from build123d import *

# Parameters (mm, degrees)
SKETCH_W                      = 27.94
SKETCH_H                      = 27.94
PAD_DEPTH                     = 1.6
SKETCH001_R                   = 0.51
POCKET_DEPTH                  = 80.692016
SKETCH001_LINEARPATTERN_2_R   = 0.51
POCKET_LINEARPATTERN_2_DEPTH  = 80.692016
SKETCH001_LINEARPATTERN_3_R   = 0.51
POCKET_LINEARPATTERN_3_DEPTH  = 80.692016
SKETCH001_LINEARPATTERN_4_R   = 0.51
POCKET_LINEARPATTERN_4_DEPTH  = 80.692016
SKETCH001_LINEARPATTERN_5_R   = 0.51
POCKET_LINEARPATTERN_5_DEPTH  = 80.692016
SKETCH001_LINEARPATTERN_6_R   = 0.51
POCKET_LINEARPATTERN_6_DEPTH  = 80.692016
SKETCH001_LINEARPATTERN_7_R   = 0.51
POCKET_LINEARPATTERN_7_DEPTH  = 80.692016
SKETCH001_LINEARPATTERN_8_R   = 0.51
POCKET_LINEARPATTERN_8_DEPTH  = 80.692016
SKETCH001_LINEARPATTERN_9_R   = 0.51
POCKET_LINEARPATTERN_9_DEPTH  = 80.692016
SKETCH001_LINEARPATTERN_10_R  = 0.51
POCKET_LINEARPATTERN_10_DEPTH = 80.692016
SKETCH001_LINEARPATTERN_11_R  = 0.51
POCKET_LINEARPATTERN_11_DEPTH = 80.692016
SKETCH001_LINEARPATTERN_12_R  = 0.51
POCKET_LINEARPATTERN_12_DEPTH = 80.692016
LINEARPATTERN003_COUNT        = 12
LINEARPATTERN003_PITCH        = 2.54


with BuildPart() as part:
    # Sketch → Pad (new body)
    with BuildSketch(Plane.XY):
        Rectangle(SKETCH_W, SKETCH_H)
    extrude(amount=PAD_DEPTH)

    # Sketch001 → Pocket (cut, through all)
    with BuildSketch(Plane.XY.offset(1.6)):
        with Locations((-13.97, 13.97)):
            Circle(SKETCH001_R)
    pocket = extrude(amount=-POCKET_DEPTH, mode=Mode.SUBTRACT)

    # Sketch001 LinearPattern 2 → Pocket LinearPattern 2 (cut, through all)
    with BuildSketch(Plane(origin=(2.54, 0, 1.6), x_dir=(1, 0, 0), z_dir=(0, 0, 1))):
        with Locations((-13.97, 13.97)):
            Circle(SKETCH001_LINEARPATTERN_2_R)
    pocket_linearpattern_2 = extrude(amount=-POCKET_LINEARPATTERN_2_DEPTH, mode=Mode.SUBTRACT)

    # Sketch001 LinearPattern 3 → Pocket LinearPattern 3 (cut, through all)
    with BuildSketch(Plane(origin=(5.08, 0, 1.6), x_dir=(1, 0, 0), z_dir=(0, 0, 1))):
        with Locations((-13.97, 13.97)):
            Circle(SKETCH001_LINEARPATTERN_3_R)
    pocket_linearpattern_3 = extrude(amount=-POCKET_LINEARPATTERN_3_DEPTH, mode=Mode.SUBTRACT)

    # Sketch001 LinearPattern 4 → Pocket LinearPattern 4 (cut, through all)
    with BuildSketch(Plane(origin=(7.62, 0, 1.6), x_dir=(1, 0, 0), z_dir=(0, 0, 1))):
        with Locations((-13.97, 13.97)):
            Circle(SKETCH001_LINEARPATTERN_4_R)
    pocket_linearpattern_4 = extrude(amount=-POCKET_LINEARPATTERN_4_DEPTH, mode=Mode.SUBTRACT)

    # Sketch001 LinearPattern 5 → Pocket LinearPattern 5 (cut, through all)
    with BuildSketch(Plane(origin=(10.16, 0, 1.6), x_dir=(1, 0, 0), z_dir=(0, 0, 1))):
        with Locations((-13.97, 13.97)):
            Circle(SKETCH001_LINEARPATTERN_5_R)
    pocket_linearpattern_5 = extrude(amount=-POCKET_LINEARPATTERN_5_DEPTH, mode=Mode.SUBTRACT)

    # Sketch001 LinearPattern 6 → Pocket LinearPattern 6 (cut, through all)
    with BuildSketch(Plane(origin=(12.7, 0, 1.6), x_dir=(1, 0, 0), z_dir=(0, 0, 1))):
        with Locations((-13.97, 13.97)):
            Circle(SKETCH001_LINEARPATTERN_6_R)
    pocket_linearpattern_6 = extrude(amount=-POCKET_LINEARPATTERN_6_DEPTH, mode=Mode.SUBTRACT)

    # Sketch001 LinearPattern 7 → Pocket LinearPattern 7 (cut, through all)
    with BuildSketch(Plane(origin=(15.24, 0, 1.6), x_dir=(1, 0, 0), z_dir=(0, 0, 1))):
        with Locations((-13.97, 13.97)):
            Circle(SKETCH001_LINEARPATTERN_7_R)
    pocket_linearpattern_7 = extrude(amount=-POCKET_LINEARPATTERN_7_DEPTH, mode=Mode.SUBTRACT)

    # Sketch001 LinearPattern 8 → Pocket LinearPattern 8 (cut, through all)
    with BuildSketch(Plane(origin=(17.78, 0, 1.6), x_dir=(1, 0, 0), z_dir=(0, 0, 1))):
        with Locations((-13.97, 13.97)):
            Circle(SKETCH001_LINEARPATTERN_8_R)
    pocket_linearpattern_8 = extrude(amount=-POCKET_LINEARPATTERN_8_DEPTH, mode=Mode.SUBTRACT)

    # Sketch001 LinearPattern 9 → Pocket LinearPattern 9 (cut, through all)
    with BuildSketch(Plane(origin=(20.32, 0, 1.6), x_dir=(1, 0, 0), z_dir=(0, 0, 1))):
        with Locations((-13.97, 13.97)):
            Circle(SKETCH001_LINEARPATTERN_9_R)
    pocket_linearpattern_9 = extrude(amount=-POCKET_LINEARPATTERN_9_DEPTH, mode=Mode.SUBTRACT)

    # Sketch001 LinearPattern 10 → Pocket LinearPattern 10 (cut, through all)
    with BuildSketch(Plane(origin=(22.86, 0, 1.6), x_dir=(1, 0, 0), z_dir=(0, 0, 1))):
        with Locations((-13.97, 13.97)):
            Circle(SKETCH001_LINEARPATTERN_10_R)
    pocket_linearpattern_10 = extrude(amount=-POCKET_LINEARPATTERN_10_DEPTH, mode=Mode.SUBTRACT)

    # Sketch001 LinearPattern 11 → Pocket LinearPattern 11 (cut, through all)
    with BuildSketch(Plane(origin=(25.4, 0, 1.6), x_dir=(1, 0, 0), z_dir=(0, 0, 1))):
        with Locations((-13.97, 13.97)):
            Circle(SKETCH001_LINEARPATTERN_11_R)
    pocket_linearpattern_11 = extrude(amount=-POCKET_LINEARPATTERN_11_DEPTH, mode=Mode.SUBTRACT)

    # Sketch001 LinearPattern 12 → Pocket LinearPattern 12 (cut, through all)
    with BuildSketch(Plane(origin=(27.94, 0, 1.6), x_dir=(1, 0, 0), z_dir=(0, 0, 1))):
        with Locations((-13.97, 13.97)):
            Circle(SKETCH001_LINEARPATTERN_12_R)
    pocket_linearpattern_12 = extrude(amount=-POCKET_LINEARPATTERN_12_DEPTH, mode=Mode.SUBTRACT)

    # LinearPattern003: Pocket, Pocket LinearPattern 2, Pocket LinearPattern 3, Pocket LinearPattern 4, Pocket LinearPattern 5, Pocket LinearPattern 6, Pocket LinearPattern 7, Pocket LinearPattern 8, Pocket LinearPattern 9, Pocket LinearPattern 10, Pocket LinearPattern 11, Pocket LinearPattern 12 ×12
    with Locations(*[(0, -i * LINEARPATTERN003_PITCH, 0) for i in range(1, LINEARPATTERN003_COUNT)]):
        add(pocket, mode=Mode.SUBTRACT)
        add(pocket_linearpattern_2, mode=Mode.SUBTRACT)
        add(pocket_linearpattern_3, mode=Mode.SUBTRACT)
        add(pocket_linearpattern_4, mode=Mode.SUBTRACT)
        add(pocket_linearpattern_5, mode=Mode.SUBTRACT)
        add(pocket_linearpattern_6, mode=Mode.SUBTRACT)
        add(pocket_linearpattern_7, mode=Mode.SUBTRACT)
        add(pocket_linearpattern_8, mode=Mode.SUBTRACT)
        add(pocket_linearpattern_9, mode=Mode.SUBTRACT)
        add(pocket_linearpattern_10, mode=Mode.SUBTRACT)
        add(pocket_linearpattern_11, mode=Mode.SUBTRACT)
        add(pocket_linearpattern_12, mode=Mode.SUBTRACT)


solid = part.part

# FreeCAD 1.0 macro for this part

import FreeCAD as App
import Part
import Sketcher
from FreeCAD import Vector


def add_polygon(sketch, points):
    """Adds a closed chain of lines whose ends are joined by coincident constraints."""
    first, n = sketch.GeometryCount, len(points)
    for a, b in zip(points, points[1:] + points[:1]):
        sketch.addGeometry(Part.LineSegment(App.Vector(*a, 0), App.Vector(*b, 0)), False)
    for i in range(n):
        sketch.addConstraint(Sketcher.Constraint("Coincident", first + i, 2, first + (i + 1) % n, 1))

doc = App.newDocument("Part")
body = doc.addObject("PartDesign::Body", "Body")

# Sketch on XY plane
sketch1 = body.newObject("Sketcher::SketchObject", "Sketch")
sketch1.AttachmentSupport = (doc.getObject("XY_Plane"), [""])
sketch1.MapMode = "FlatFace"
add_polygon(sketch1, [(-13.97, 13.97), (-13.97, -13.97), (13.97, -13.97), (13.97, 13.97)])  # lines 0-3
sketch1.addConstraint(Sketcher.Constraint("Vertical", 0))
sketch1.addConstraint(Sketcher.Constraint("Horizontal", 1))
sketch1.addConstraint(Sketcher.Constraint("Vertical", 2))
sketch1.addConstraint(Sketcher.Constraint("Horizontal", 3))
sketch1.addConstraint(Sketcher.Constraint("Symmetric", 0, 2, 2, 2, -1, 1))
sketch1.addConstraint(Sketcher.Constraint("Equal", 3, 0))
sketch1.addConstraint(Sketcher.Constraint("DistanceX", 1, 1, 1, 2, 27.94))
pad1 = body.newObject("PartDesign::Pad", "Pad")
pad1.Profile = sketch1
pad1.Length = 1.6

# Sketch on XY plane
sketch2 = body.newObject("Sketcher::SketchObject", "Sketch001")
sketch2.AttachmentSupport = (doc.getObject("XY_Plane"), [""])
sketch2.MapMode = "FlatFace"
sketch2.AttachmentOffset = App.Placement(Vector(0, 0, 1.6), App.Rotation())
sketch2.addGeometry(Part.Circle(Vector(-13.97, 13.97, 0), Vector(0, 0, 1), 0.51), False)
sketch2.addConstraint(Sketcher.Constraint("Diameter", 0, 1.02))
sketch2.addConstraint(Sketcher.Constraint("DistanceX", 0, 3, -1, 1, 13.97))
sketch2.addConstraint(Sketcher.Constraint("DistanceY", -1, 1, 0, 3, 13.97))
pocket1 = body.newObject("PartDesign::Pocket", "Pocket")
pocket1.Profile = sketch2
pocket1.Type = "ThroughAll"

# Sketch on XY plane
sketch3 = body.newObject("Sketcher::SketchObject", "Sketch002")
sketch3.AttachmentSupport = (doc.getObject("XY_Plane"), [""])
sketch3.MapMode = "FlatFace"
sketch3.AttachmentOffset = App.Placement(Vector(0, 0, 1.6), App.Rotation())
sketch3.addGeometry(Part.Circle(Vector(-11.43, 13.97, 0), Vector(0, 0, 1), 0.51), False)
sketch3.addConstraint(Sketcher.Constraint("Diameter", 0, 1.02))
sketch3.addConstraint(Sketcher.Constraint("DistanceX", 0, 3, -1, 1, 11.43))
sketch3.addConstraint(Sketcher.Constraint("DistanceY", -1, 1, 0, 3, 13.97))
pocket2 = body.newObject("PartDesign::Pocket", "Pocket001")
pocket2.Profile = sketch3
pocket2.Type = "ThroughAll"

# Sketch on XY plane
sketch4 = body.newObject("Sketcher::SketchObject", "Sketch003")
sketch4.AttachmentSupport = (doc.getObject("XY_Plane"), [""])
sketch4.MapMode = "FlatFace"
sketch4.AttachmentOffset = App.Placement(Vector(0, 0, 1.6), App.Rotation())
sketch4.addGeometry(Part.Circle(Vector(-8.89, 13.97, 0), Vector(0, 0, 1), 0.51), False)
sketch4.addConstraint(Sketcher.Constraint("Diameter", 0, 1.02))
sketch4.addConstraint(Sketcher.Constraint("DistanceX", 0, 3, -1, 1, 8.89))
sketch4.addConstraint(Sketcher.Constraint("DistanceY", -1, 1, 0, 3, 13.97))
pocket3 = body.newObject("PartDesign::Pocket", "Pocket002")
pocket3.Profile = sketch4
pocket3.Type = "ThroughAll"

# Sketch on XY plane
sketch5 = body.newObject("Sketcher::SketchObject", "Sketch004")
sketch5.AttachmentSupport = (doc.getObject("XY_Plane"), [""])
sketch5.MapMode = "FlatFace"
sketch5.AttachmentOffset = App.Placement(Vector(0, 0, 1.6), App.Rotation())
sketch5.addGeometry(Part.Circle(Vector(-6.35, 13.97, 0), Vector(0, 0, 1), 0.51), False)
sketch5.addConstraint(Sketcher.Constraint("Diameter", 0, 1.02))
sketch5.addConstraint(Sketcher.Constraint("DistanceX", 0, 3, -1, 1, 6.35))
sketch5.addConstraint(Sketcher.Constraint("DistanceY", -1, 1, 0, 3, 13.97))
pocket4 = body.newObject("PartDesign::Pocket", "Pocket003")
pocket4.Profile = sketch5
pocket4.Type = "ThroughAll"

# Sketch on XY plane
sketch6 = body.newObject("Sketcher::SketchObject", "Sketch005")
sketch6.AttachmentSupport = (doc.getObject("XY_Plane"), [""])
sketch6.MapMode = "FlatFace"
sketch6.AttachmentOffset = App.Placement(Vector(0, 0, 1.6), App.Rotation())
sketch6.addGeometry(Part.Circle(Vector(-3.81, 13.97, 0), Vector(0, 0, 1), 0.51), False)
sketch6.addConstraint(Sketcher.Constraint("Diameter", 0, 1.02))
sketch6.addConstraint(Sketcher.Constraint("DistanceX", 0, 3, -1, 1, 3.81))
sketch6.addConstraint(Sketcher.Constraint("DistanceY", -1, 1, 0, 3, 13.97))
pocket5 = body.newObject("PartDesign::Pocket", "Pocket004")
pocket5.Profile = sketch6
pocket5.Type = "ThroughAll"

# Sketch on XY plane
sketch7 = body.newObject("Sketcher::SketchObject", "Sketch006")
sketch7.AttachmentSupport = (doc.getObject("XY_Plane"), [""])
sketch7.MapMode = "FlatFace"
sketch7.AttachmentOffset = App.Placement(Vector(0, 0, 1.6), App.Rotation())
sketch7.addGeometry(Part.Circle(Vector(-1.27, 13.97, 0), Vector(0, 0, 1), 0.51), False)
sketch7.addConstraint(Sketcher.Constraint("Diameter", 0, 1.02))
sketch7.addConstraint(Sketcher.Constraint("DistanceX", 0, 3, -1, 1, 1.27))
sketch7.addConstraint(Sketcher.Constraint("DistanceY", -1, 1, 0, 3, 13.97))
pocket6 = body.newObject("PartDesign::Pocket", "Pocket005")
pocket6.Profile = sketch7
pocket6.Type = "ThroughAll"

# Sketch on XY plane
sketch8 = body.newObject("Sketcher::SketchObject", "Sketch007")
sketch8.AttachmentSupport = (doc.getObject("XY_Plane"), [""])
sketch8.MapMode = "FlatFace"
sketch8.AttachmentOffset = App.Placement(Vector(0, 0, 1.6), App.Rotation())
sketch8.addGeometry(Part.Circle(Vector(1.27, 13.97, 0), Vector(0, 0, 1), 0.51), False)
sketch8.addConstraint(Sketcher.Constraint("Diameter", 0, 1.02))
sketch8.addConstraint(Sketcher.Constraint("DistanceX", -1, 1, 0, 3, 1.27))
sketch8.addConstraint(Sketcher.Constraint("DistanceY", -1, 1, 0, 3, 13.97))
pocket7 = body.newObject("PartDesign::Pocket", "Pocket006")
pocket7.Profile = sketch8
pocket7.Type = "ThroughAll"

# Sketch on XY plane
sketch9 = body.newObject("Sketcher::SketchObject", "Sketch008")
sketch9.AttachmentSupport = (doc.getObject("XY_Plane"), [""])
sketch9.MapMode = "FlatFace"
sketch9.AttachmentOffset = App.Placement(Vector(0, 0, 1.6), App.Rotation())
sketch9.addGeometry(Part.Circle(Vector(3.81, 13.97, 0), Vector(0, 0, 1), 0.51), False)
sketch9.addConstraint(Sketcher.Constraint("Diameter", 0, 1.02))
sketch9.addConstraint(Sketcher.Constraint("DistanceX", -1, 1, 0, 3, 3.81))
sketch9.addConstraint(Sketcher.Constraint("DistanceY", -1, 1, 0, 3, 13.97))
pocket8 = body.newObject("PartDesign::Pocket", "Pocket007")
pocket8.Profile = sketch9
pocket8.Type = "ThroughAll"

# Sketch on XY plane
sketch10 = body.newObject("Sketcher::SketchObject", "Sketch009")
sketch10.AttachmentSupport = (doc.getObject("XY_Plane"), [""])
sketch10.MapMode = "FlatFace"
sketch10.AttachmentOffset = App.Placement(Vector(0, 0, 1.6), App.Rotation())
sketch10.addGeometry(Part.Circle(Vector(6.35, 13.97, 0), Vector(0, 0, 1), 0.51), False)
sketch10.addConstraint(Sketcher.Constraint("Diameter", 0, 1.02))
sketch10.addConstraint(Sketcher.Constraint("DistanceX", -1, 1, 0, 3, 6.35))
sketch10.addConstraint(Sketcher.Constraint("DistanceY", -1, 1, 0, 3, 13.97))
pocket9 = body.newObject("PartDesign::Pocket", "Pocket008")
pocket9.Profile = sketch10
pocket9.Type = "ThroughAll"

# Sketch on XY plane
sketch11 = body.newObject("Sketcher::SketchObject", "Sketch010")
sketch11.AttachmentSupport = (doc.getObject("XY_Plane"), [""])
sketch11.MapMode = "FlatFace"
sketch11.AttachmentOffset = App.Placement(Vector(0, 0, 1.6), App.Rotation())
sketch11.addGeometry(Part.Circle(Vector(8.89, 13.97, 0), Vector(0, 0, 1), 0.51), False)
sketch11.addConstraint(Sketcher.Constraint("Diameter", 0, 1.02))
sketch11.addConstraint(Sketcher.Constraint("DistanceX", -1, 1, 0, 3, 8.89))
sketch11.addConstraint(Sketcher.Constraint("DistanceY", -1, 1, 0, 3, 13.97))
pocket10 = body.newObject("PartDesign::Pocket", "Pocket009")
pocket10.Profile = sketch11
pocket10.Type = "ThroughAll"

# Sketch on XY plane
sketch12 = body.newObject("Sketcher::SketchObject", "Sketch011")
sketch12.AttachmentSupport = (doc.getObject("XY_Plane"), [""])
sketch12.MapMode = "FlatFace"
sketch12.AttachmentOffset = App.Placement(Vector(0, 0, 1.6), App.Rotation())
sketch12.addGeometry(Part.Circle(Vector(11.43, 13.97, 0), Vector(0, 0, 1), 0.51), False)
sketch12.addConstraint(Sketcher.Constraint("Diameter", 0, 1.02))
sketch12.addConstraint(Sketcher.Constraint("DistanceX", -1, 1, 0, 3, 11.43))
sketch12.addConstraint(Sketcher.Constraint("DistanceY", -1, 1, 0, 3, 13.97))
pocket11 = body.newObject("PartDesign::Pocket", "Pocket010")
pocket11.Profile = sketch12
pocket11.Type = "ThroughAll"

# Sketch on XY plane
sketch13 = body.newObject("Sketcher::SketchObject", "Sketch012")
sketch13.AttachmentSupport = (doc.getObject("XY_Plane"), [""])
sketch13.MapMode = "FlatFace"
sketch13.AttachmentOffset = App.Placement(Vector(0, 0, 1.6), App.Rotation())
sketch13.addGeometry(Part.Circle(Vector(13.97, 13.97, 0), Vector(0, 0, 1), 0.51), False)
sketch13.addConstraint(Sketcher.Constraint("Diameter", 0, 1.02))
sketch13.addConstraint(Sketcher.Constraint("DistanceX", -1, 1, 0, 3, 13.97))
sketch13.addConstraint(Sketcher.Constraint("DistanceY", -1, 1, 0, 3, 13.97))
pocket12 = body.newObject("PartDesign::Pocket", "Pocket011")
pocket12.Profile = sketch13
pocket12.Type = "ThroughAll"
doc.recompute()

linearpattern = body.newObject("PartDesign::LinearPattern", "LinearPattern")
linearpattern.Originals = [pocket1, pocket2, pocket3, pocket4, pocket5, pocket6, pocket7, pocket8, pocket9, pocket10, pocket11, pocket12]
linearpattern.Direction = (doc.getObject("Y_Axis"), [""])
linearpattern.Mode = "offset"
linearpattern.Offset = 2.54
linearpattern.Occurrences = 12
linearpattern.Reversed = True
body.Tip = linearpattern

doc.recompute()
